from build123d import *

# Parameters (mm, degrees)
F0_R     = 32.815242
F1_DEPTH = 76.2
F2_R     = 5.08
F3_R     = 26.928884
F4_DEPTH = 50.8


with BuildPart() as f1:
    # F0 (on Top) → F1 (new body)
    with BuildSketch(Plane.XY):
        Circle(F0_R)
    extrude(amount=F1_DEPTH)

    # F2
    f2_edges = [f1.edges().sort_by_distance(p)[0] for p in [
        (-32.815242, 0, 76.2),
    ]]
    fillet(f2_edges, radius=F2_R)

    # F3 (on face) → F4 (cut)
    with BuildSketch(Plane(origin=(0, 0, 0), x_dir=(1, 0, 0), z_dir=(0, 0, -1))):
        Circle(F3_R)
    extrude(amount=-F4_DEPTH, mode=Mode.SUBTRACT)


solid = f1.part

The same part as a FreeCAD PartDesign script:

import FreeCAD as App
import Part
import Sketcher

V = App.Vector
Q = App.Units.Quantity


def edges_at(feature, points):
    """Names of the edges that pass closest to the given points."""
    edges = feature.Shape.Edges
    near = lambda p: min(range(len(edges)), key=lambda i: edges[i].distToShape(Part.Vertex(*p))[0])
    return sorted({f"Edge{near(p) + 1}" for p in points})

doc = App.newDocument("Part")
body = doc.addObject("PartDesign::Body", "Body")

# Sketch on XY plane
sketch1 = body.newObject("Sketcher::SketchObject", "Sketch")
sketch1.AttachmentSupport = (doc.getObject("XY_Plane"), [""])
sketch1.MapMode = "FlatFace"
sketch1.addGeometry(Part.Circle(V(0, 0, 0), V(0, 0, 1), 32.815242), False)
sketch1.addConstraint(Sketcher.Constraint("Coincident", 0, 3, -1, 1))
sketch1.addConstraint(Sketcher.Constraint("Diameter", 0, Q("65.630484 mm")))
pad1 = body.newObject("PartDesign::Pad", "Pad")
pad1.Profile = sketch1
pad1.Length = Q("3 in")
doc.recompute()

fillet = body.newObject("PartDesign::Fillet", "Fillet")
fillet.Base = (pad1, edges_at(pad1, [(-32.815, 0, 76.2)]))
fillet.Radius = Q("0.2 in")

# Sketch on XY plane
sketch2 = body.newObject("Sketcher::SketchObject", "Sketch001")
sketch2.AttachmentSupport = (doc.getObject("XY_Plane"), [""])
sketch2.MapMode = "FlatFace"
sketch2.addGeometry(Part.Circle(V(0, 0, 0), V(0, 0, 1), 26.928884), False)
sketch2.addConstraint(Sketcher.Constraint("Coincident", 0, 3, -1, 1))
sketch2.addConstraint(Sketcher.Constraint("Diameter", 0, Q("53.857768 mm")))
pocket1 = body.newObject("PartDesign::Pocket", "Pocket")
pocket1.Profile = sketch2
pocket1.Length = Q("2 in")
pocket1.Reversed = True

doc.recompute()
